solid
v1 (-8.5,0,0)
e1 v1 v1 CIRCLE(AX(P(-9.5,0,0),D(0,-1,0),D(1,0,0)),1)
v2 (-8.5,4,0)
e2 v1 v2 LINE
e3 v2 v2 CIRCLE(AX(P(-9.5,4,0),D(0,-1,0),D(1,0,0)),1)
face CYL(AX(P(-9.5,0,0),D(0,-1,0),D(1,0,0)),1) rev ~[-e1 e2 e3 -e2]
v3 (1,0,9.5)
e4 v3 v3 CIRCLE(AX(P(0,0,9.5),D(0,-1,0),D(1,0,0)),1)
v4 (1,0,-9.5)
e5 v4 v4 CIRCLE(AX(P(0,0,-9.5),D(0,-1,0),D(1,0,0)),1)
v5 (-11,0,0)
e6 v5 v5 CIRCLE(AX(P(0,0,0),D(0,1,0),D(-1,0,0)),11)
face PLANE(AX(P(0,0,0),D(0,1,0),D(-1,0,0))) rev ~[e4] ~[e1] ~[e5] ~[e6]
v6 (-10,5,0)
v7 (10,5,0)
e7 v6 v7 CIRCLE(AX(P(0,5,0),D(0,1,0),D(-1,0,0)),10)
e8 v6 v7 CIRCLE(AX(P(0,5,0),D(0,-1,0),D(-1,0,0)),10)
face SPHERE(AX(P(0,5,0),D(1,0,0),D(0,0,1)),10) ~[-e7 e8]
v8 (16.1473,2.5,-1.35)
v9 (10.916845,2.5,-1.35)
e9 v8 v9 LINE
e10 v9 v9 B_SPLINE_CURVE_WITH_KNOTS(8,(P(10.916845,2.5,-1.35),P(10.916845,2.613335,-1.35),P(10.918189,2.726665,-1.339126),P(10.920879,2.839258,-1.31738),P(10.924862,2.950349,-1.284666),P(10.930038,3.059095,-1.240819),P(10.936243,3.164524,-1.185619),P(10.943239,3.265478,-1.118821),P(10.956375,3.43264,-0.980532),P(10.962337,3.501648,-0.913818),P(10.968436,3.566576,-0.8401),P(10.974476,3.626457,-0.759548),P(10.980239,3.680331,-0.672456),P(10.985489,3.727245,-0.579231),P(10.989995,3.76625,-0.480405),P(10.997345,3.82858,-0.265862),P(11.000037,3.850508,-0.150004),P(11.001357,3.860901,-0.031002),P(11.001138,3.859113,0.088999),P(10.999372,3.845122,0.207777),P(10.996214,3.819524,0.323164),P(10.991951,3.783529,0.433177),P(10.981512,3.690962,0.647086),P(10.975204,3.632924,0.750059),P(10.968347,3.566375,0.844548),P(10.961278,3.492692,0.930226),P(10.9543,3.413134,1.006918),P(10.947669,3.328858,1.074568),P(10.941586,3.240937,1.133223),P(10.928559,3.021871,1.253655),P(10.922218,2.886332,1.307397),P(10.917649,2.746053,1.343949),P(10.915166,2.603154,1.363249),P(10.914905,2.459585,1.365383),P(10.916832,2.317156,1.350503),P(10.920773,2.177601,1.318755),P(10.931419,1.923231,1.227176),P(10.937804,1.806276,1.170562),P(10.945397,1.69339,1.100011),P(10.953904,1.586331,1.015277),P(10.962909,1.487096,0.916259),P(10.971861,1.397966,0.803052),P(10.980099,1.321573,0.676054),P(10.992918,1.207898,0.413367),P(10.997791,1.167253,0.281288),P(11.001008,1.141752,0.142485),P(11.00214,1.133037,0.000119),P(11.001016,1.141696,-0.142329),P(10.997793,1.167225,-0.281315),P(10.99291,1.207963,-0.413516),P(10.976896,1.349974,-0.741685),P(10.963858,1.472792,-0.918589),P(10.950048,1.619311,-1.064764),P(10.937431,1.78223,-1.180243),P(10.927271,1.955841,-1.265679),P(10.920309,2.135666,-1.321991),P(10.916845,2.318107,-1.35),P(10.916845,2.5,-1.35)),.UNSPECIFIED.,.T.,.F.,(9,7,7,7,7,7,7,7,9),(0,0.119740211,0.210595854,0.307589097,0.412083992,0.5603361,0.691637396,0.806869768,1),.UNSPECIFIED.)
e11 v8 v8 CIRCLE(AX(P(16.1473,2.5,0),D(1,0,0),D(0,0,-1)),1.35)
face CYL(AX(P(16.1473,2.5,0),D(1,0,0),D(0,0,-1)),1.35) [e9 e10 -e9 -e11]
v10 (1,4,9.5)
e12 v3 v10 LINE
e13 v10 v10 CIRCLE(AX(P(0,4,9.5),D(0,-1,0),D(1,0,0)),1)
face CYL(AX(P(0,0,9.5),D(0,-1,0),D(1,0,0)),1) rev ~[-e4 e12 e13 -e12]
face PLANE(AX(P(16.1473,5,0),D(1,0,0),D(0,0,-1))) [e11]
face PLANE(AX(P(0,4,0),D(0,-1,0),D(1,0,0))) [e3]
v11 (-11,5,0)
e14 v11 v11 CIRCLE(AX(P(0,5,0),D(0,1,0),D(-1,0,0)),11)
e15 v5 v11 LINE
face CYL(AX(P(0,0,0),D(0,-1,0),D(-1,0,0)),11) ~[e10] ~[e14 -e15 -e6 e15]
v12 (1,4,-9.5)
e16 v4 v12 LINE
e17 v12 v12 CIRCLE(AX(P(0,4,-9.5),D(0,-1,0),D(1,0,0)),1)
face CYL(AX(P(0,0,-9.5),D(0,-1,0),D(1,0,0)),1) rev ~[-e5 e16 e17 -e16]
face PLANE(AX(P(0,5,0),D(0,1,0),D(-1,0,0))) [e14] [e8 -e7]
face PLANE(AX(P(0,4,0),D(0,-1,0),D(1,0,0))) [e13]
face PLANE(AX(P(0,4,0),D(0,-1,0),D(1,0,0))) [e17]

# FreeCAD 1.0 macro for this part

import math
import FreeCAD as App
import Part
import Sketcher
from FreeCAD import Vector
Q = App.Units.Quantity

doc = App.newDocument("Part")
body = doc.addObject("PartDesign::Body", "Body")

# Sketch on XZ plane
sketch1 = body.newObject("Sketcher::SketchObject", "Sketch")
sketch1.AttachmentSupport = (doc.getObject("XZ_Plane"), [""])
sketch1.MapMode = "FlatFace"
sketch1.addGeometry(Part.Circle(Vector(0, 0, 0), Vector(0, 0, 1), 11), False)
sketch1.addConstraint([
    Sketcher.Constraint("Coincident", 0, 3, -1, 1),
    Sketcher.Constraint("Diameter", 0, Q("22 mm")),
])
pad1 = body.newObject("PartDesign::Pad", "Pad")
pad1.Profile = sketch1
pad1.Length = 5
pad1.Reversed = True

# Sketch on XZ plane
sketch2 = body.newObject("Sketcher::SketchObject", "Sketch001")
sketch2.AttachmentSupport = (doc.getObject("XZ_Plane"), [""])
sketch2.MapMode = "FlatFace"
sketch2.AttachmentOffset = App.Placement(Vector(0, 0, -5), App.Rotation())
sketch2.addGeometry([
    Part.LineSegment(Vector(10, 0, 0), Vector(-10, 0, 0)),
    Part.ArcOfCircle(Part.Circle(Vector(0, 0, 0), Vector(0, 0, 1), 10), math.radians(0), math.radians(180)),
], False)
sketch2.addConstraint([
    Sketcher.Constraint("Coincident", 0, 1, 1, 1),
    Sketcher.Constraint("Coincident", 1, 2, 0, 2),
    Sketcher.Constraint("Horizontal", 0),
    Sketcher.Constraint("Coincident", 1, 3, -1, 1),
    Sketcher.Constraint("PointOnObject", 0, 1, -1),
    Sketcher.Constraint("Radius", 1, Q("10 mm")),
])
revolution = body.newObject("PartDesign::Revolution", "Revolution")
revolution.Profile = sketch2
revolution.ReferenceAxis = (sketch2, ["H_Axis"])
revolution.Angle = 180
revolution.Reversed = True

# Sketch on YZ plane
sketch3 = body.newObject("Sketcher::SketchObject", "Sketch002")
sketch3.AttachmentSupport = (doc.getObject("YZ_Plane"), [""])
sketch3.MapMode = "FlatFace"
sketch3.AttachmentOffset = App.Placement(Vector(0, 0, 16.1473), App.Rotation())
sketch3.addGeometry(Part.Circle(Vector(2.5, 0, 0), Vector(0, 0, 1), 1.4), False)
sketch3.addConstraint([
    Sketcher.Constraint("PointOnObject", 0, 3, -1),
    Sketcher.Constraint("Diameter", 0, Q("2.7 mm")),
    Sketcher.Constraint("DistanceX", -1, 1, 0, 3, Q("2.5 mm")),
])
pad2 = body.newObject("PartDesign::Pad", "Pad001")
pad2.Profile = sketch3
pad2.Length = 5.25
pad2.Reversed = True

# Sketch on XZ plane
sketch4 = body.newObject("Sketcher::SketchObject", "Sketch003")
sketch4.AttachmentSupport = (doc.getObject("XZ_Plane"), [""])
sketch4.MapMode = "FlatFace"
sketch4.addGeometry([
    Part.Circle(Vector(0, 9.5, 0), Vector(0, 0, 1), 1),
    Part.Circle(Vector(0, -9.5, 0), Vector(0, 0, 1), 1),
    Part.Circle(Vector(-9.5, 0, 0), Vector(0, 0, 1), 1),
], False)
sketch4.addConstraint([
    Sketcher.Constraint("Equal", 0, 1),
    Sketcher.Constraint("Equal", 1, 2),
    Sketcher.Constraint("Symmetric", 0, 3, 1, 3, -1, 1),
    Sketcher.Constraint("PointOnObject", 0, 3, -2),
    Sketcher.Constraint("PointOnObject", 2, 3, -1),
    Sketcher.Constraint("Diameter", 0, Q("2 mm")),
    Sketcher.Constraint("DistanceY", 1, 3, 0, 3, Q("19 mm")),
    Sketcher.Constraint("DistanceX", 2, 3, -1, 1, Q("9.5 mm")),
])
pocket1 = body.newObject("PartDesign::Pocket", "Pocket")
pocket1.Profile = sketch4
pocket1.Length = 4

doc.recompute()
